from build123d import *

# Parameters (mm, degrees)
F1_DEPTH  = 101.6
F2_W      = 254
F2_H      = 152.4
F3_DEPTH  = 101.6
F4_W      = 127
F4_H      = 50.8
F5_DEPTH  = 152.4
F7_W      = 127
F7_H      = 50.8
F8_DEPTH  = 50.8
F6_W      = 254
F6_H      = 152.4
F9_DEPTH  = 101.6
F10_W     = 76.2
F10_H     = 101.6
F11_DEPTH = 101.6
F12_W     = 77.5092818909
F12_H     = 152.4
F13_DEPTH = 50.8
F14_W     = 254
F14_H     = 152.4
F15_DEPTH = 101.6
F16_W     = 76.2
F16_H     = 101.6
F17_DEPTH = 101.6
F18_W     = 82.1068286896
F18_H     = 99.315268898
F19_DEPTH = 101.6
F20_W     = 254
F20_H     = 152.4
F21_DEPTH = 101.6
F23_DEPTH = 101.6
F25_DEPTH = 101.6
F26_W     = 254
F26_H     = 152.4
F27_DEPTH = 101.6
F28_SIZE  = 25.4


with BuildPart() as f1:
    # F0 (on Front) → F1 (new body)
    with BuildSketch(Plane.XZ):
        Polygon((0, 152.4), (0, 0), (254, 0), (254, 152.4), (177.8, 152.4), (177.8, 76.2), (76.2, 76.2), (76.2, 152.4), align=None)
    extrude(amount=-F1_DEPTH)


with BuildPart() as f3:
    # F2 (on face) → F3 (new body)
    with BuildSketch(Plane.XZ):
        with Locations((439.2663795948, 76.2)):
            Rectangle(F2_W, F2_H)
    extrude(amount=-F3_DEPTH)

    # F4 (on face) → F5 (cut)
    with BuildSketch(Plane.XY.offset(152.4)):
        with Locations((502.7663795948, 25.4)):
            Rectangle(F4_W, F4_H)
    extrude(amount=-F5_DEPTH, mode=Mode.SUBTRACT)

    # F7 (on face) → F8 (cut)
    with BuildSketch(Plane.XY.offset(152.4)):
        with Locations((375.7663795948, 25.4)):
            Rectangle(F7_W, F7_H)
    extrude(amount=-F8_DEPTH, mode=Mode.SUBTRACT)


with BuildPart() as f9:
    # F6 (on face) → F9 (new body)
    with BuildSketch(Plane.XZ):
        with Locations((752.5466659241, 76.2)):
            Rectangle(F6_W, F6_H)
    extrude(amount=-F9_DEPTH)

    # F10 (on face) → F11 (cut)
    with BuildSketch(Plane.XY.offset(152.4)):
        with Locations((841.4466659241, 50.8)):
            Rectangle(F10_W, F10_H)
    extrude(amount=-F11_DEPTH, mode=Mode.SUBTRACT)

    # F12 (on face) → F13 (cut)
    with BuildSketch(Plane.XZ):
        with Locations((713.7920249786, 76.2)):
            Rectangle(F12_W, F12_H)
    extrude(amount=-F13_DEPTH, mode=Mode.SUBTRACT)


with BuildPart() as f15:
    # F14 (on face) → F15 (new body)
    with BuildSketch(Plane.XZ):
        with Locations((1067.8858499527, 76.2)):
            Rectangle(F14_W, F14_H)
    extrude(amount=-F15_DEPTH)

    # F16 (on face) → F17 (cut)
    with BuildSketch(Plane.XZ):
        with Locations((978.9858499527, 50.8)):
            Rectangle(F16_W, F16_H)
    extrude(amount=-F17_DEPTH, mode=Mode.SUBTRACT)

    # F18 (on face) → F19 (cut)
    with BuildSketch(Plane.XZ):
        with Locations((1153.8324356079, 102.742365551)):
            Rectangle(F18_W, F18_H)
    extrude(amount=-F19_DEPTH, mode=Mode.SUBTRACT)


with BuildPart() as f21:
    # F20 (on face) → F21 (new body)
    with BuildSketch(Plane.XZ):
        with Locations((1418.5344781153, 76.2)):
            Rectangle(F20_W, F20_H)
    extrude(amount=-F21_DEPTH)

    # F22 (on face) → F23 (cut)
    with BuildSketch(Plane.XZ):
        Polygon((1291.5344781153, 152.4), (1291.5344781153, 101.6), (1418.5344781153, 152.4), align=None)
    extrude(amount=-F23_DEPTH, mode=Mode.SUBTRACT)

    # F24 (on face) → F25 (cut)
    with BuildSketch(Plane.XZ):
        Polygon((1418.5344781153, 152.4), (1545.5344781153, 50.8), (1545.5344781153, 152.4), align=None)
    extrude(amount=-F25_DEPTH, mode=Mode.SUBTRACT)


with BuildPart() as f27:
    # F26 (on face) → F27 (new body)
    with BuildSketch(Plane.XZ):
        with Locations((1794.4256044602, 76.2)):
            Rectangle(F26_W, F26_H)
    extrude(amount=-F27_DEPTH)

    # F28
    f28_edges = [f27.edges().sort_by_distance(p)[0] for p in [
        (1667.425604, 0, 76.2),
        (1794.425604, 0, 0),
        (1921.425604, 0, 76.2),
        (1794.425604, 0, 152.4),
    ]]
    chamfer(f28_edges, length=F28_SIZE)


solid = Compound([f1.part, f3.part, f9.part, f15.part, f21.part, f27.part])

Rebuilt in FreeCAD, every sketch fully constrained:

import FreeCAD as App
import Part
import Sketcher
Q = App.Units.Quantity


def edges_at(feature, points):
    """Names of the edges that pass closest to the given points."""
    edges = feature.Shape.Edges
    near = lambda p: min(range(len(edges)), key=lambda i: edges[i].distToShape(Part.Vertex(*p))[0])
    return sorted({f"Edge{near(p) + 1}" for p in points})


def add_polygon(sketch, points):
    """Adds a closed chain of lines whose ends are joined by coincident constraints."""
    first, n = sketch.GeometryCount, len(points)
    for a, b in zip(points, points[1:] + points[:1]):
        sketch.addGeometry(Part.LineSegment(App.Vector(*a, 0), App.Vector(*b, 0)), False)
    for i in range(n):
        sketch.addConstraint(Sketcher.Constraint("Coincident", first + i, 2, first + (i + 1) % n, 1))

doc = App.newDocument("Part")
body = doc.addObject("PartDesign::Body", "Body")

# Sketch on XZ plane
sketch1 = body.newObject("Sketcher::SketchObject", "Sketch")
sketch1.AttachmentSupport = (doc.getObject("XZ_Plane"), [""])
sketch1.MapMode = "FlatFace"
add_polygon(sketch1, [(0, 152.4), (0, 0), (254, 0), (254, 152.4), (177.8, 152.4), (177.8, 76.2), (76.2, 76.2), (76.2, 152.4)])  # lines 0-7
sketch1.addConstraint(Sketcher.Constraint("Vertical", 0))
sketch1.addConstraint(Sketcher.Constraint("Horizontal", 1))
sketch1.addConstraint(Sketcher.Constraint("Vertical", 2))
sketch1.addConstraint(Sketcher.Constraint("Horizontal", 3))
sketch1.addConstraint(Sketcher.Constraint("Vertical", 4))
sketch1.addConstraint(Sketcher.Constraint("Horizontal", 5))
sketch1.addConstraint(Sketcher.Constraint("Vertical", 6))
sketch1.addConstraint(Sketcher.Constraint("Horizontal", 7))
sketch1.addConstraint(Sketcher.Constraint("Coincident", 0, 2, -1, 1))
sketch1.addConstraint(Sketcher.Constraint("Horizontal", 3, 2, 6, 2))
sketch1.addConstraint(Sketcher.Constraint("Equal", 3, 7))
sketch1.addConstraint(Sketcher.Constraint("Equal", 7, 4))
sketch1.addConstraint(Sketcher.Constraint("DistanceX", 1, 1, 1, 2, Q("10 in")))
sketch1.addConstraint(Sketcher.Constraint("DistanceX", 3, 2, 3, 1, Q("3 in")))
sketch1.addConstraint(Sketcher.Constraint("DistanceY", 0, 2, 0, 1, Q("6 in")))
pad1 = body.newObject("PartDesign::Pad", "Pad")
pad1.Profile = sketch1
pad1.Length = Q("4 in")
pad1.Reversed = True
body2 = doc.addObject("PartDesign::Body", "Body001")

# Sketch on XZ plane
sketch2 = body2.newObject("Sketcher::SketchObject", "Sketch001")
sketch2.AttachmentSupport = (doc.getObject("XZ_Plane001"), [""])
sketch2.MapMode = "FlatFace"
add_polygon(sketch2, [(312.26638, 152.4), (312.26638, 0), (566.26638, 0), (566.26638, 152.4)])  # lines 0-3
sketch2.addConstraint(Sketcher.Constraint("Vertical", 0))
sketch2.addConstraint(Sketcher.Constraint("Horizontal", 1))
sketch2.addConstraint(Sketcher.Constraint("Vertical", 2))
sketch2.addConstraint(Sketcher.Constraint("Horizontal", 3))
sketch2.addConstraint(Sketcher.Constraint("PointOnObject", 0, 2, -1))
sketch2.addConstraint(Sketcher.Constraint("DistanceX", 1, 1, 1, 2, Q("10 in")))
sketch2.addConstraint(Sketcher.Constraint("DistanceY", 0, 2, 0, 1, Q("6 in")))
sketch2.addConstraint(Sketcher.Constraint("DistanceX", -1, 1, 0, 2, Q("312.26638 mm")))
pad2 = body2.newObject("PartDesign::Pad", "Pad001")
pad2.Profile = sketch2
pad2.Length = Q("4 in")
pad2.Reversed = True

# Sketch on XY plane
sketch3 = body2.newObject("Sketcher::SketchObject", "Sketch002")
sketch3.AttachmentSupport = (doc.getObject("XY_Plane001"), [""])
sketch3.MapMode = "FlatFace"
sketch3.AttachmentOffset = App.Placement(App.Vector(0, 0, 6 * 25.4), App.Rotation())
add_polygon(sketch3, [(439.26638, 50.8), (439.26638, 0), (566.26638, 0), (566.26638, 50.8)])  # lines 0-3
sketch3.addConstraint(Sketcher.Constraint("Vertical", 0))
sketch3.addConstraint(Sketcher.Constraint("Horizontal", 1))
sketch3.addConstraint(Sketcher.Constraint("Vertical", 2))
sketch3.addConstraint(Sketcher.Constraint("Horizontal", 3))
sketch3.addConstraint(Sketcher.Constraint("PointOnObject", 0, 2, -1))
sketch3.addConstraint(Sketcher.Constraint("DistanceX", 1, 1, 1, 2, Q("5 in")))
sketch3.addConstraint(Sketcher.Constraint("DistanceY", 0, 2, 0, 1, Q("2 in")))
sketch3.addConstraint(Sketcher.Constraint("DistanceX", -1, 1, 0, 2, Q("439.26638 mm")))
pocket1 = body2.newObject("PartDesign::Pocket", "Pocket")
pocket1.Profile = sketch3
pocket1.Length = Q("6 in")

# Sketch on XY plane
sketch4 = body2.newObject("Sketcher::SketchObject", "Sketch003")
sketch4.AttachmentSupport = (doc.getObject("XY_Plane001"), [""])
sketch4.MapMode = "FlatFace"
sketch4.AttachmentOffset = App.Placement(App.Vector(0, 0, 6 * 25.4), App.Rotation())
add_polygon(sketch4, [(312.26638, 50.8), (312.26638, 0), (439.26638, 0), (439.26638, 50.8)])  # lines 0-3
sketch4.addConstraint(Sketcher.Constraint("Vertical", 0))
sketch4.addConstraint(Sketcher.Constraint("Horizontal", 1))
sketch4.addConstraint(Sketcher.Constraint("Vertical", 2))
sketch4.addConstraint(Sketcher.Constraint("Horizontal", 3))
sketch4.addConstraint(Sketcher.Constraint("PointOnObject", 0, 2, -1))
sketch4.addConstraint(Sketcher.Constraint("DistanceX", 1, 1, 1, 2, Q("5 in")))
sketch4.addConstraint(Sketcher.Constraint("DistanceY", 0, 2, 0, 1, Q("2 in")))
sketch4.addConstraint(Sketcher.Constraint("DistanceX", -1, 1, 0, 2, Q("312.26638 mm")))
pocket2 = body2.newObject("PartDesign::Pocket", "Pocket001")
pocket2.Profile = sketch4
pocket2.Length = Q("2 in")
body3 = doc.addObject("PartDesign::Body", "Body002")

# Sketch on XZ plane
sketch5 = body3.newObject("Sketcher::SketchObject", "Sketch004")
sketch5.AttachmentSupport = (doc.getObject("XZ_Plane002"), [""])
sketch5.MapMode = "FlatFace"
add_polygon(sketch5, [(625.546666, 152.4), (625.546666, 0), (879.546666, 0), (879.546666, 152.4)])  # lines 0-3
sketch5.addConstraint(Sketcher.Constraint("Vertical", 0))
sketch5.addConstraint(Sketcher.Constraint("Horizontal", 1))
sketch5.addConstraint(Sketcher.Constraint("Vertical", 2))
sketch5.addConstraint(Sketcher.Constraint("Horizontal", 3))
sketch5.addConstraint(Sketcher.Constraint("PointOnObject", 0, 2, -1))
sketch5.addConstraint(Sketcher.Constraint("DistanceX", 1, 1, 1, 2, Q("10 in")))
sketch5.addConstraint(Sketcher.Constraint("DistanceY", 0, 2, 0, 1, Q("6 in")))
sketch5.addConstraint(Sketcher.Constraint("DistanceX", -1, 1, 0, 2, Q("625.546666 mm")))
pad3 = body3.newObject("PartDesign::Pad", "Pad002")
pad3.Profile = sketch5
pad3.Length = Q("4 in")
pad3.Reversed = True

# Sketch on XY plane
sketch6 = body3.newObject("Sketcher::SketchObject", "Sketch005")
sketch6.AttachmentSupport = (doc.getObject("XY_Plane002"), [""])
sketch6.MapMode = "FlatFace"
sketch6.AttachmentOffset = App.Placement(App.Vector(0, 0, 6 * 25.4), App.Rotation())
add_polygon(sketch6, [(803.346666, 101.6), (803.346666, 0), (879.546666, 0), (879.546666, 101.6)])  # lines 0-3
sketch6.addConstraint(Sketcher.Constraint("Vertical", 0))
sketch6.addConstraint(Sketcher.Constraint("Horizontal", 1))
sketch6.addConstraint(Sketcher.Constraint("Vertical", 2))
sketch6.addConstraint(Sketcher.Constraint("Horizontal", 3))
sketch6.addConstraint(Sketcher.Constraint("PointOnObject", 0, 2, -1))
sketch6.addConstraint(Sketcher.Constraint("DistanceX", 1, 1, 1, 2, Q("3 in")))
sketch6.addConstraint(Sketcher.Constraint("DistanceY", 0, 2, 0, 1, Q("4 in")))
sketch6.addConstraint(Sketcher.Constraint("DistanceX", -1, 1, 0, 2, Q("803.346666 mm")))
pocket3 = body3.newObject("PartDesign::Pocket", "Pocket002")
pocket3.Profile = sketch6
pocket3.Length = Q("4 in")

# Sketch on XZ plane
sketch7 = body3.newObject("Sketcher::SketchObject", "Sketch006")
sketch7.AttachmentSupport = (doc.getObject("XZ_Plane002"), [""])
sketch7.MapMode = "FlatFace"
add_polygon(sketch7, [(675.037384, 152.4), (675.037384, 0), (752.546666, 0), (752.546666, 152.4)])  # lines 0-3
sketch7.addConstraint(Sketcher.Constraint("Vertical", 0))
sketch7.addConstraint(Sketcher.Constraint("Horizontal", 1))
sketch7.addConstraint(Sketcher.Constraint("Vertical", 2))
sketch7.addConstraint(Sketcher.Constraint("Horizontal", 3))
sketch7.addConstraint(Sketcher.Constraint("PointOnObject", 0, 2, -1))
sketch7.addConstraint(Sketcher.Constraint("DistanceY", 0, 2, 0, 1, Q("6 in")))
sketch7.addConstraint(Sketcher.Constraint("DistanceX", 1, 1, 1, 2, Q("77.509282 mm")))
sketch7.addConstraint(Sketcher.Constraint("DistanceX", -1, 1, 0, 2, Q("675.037384 mm")))
pocket4 = body3.newObject("PartDesign::Pocket", "Pocket003")
pocket4.Profile = sketch7
pocket4.Length = Q("2 in")
body4 = doc.addObject("PartDesign::Body", "Body003")

# Sketch on XZ plane
sketch8 = body4.newObject("Sketcher::SketchObject", "Sketch007")
sketch8.AttachmentSupport = (doc.getObject("XZ_Plane003"), [""])
sketch8.MapMode = "FlatFace"
add_polygon(sketch8, [(940.88585, 152.4), (940.88585, 0), (1194.88585, 0), (1194.88585, 152.4)])  # lines 0-3
sketch8.addConstraint(Sketcher.Constraint("Vertical", 0))
sketch8.addConstraint(Sketcher.Constraint("Horizontal", 1))
sketch8.addConstraint(Sketcher.Constraint("Vertical", 2))
sketch8.addConstraint(Sketcher.Constraint("Horizontal", 3))
sketch8.addConstraint(Sketcher.Constraint("PointOnObject", 0, 2, -1))
sketch8.addConstraint(Sketcher.Constraint("DistanceX", 1, 1, 1, 2, Q("10 in")))
sketch8.addConstraint(Sketcher.Constraint("DistanceY", 0, 2, 0, 1, Q("6 in")))
sketch8.addConstraint(Sketcher.Constraint("DistanceX", -1, 1, 0, 2, Q("940.88585 mm")))
pad4 = body4.newObject("PartDesign::Pad", "Pad003")
pad4.Profile = sketch8
pad4.Length = Q("4 in")
pad4.Reversed = True

# Sketch on XZ plane
sketch9 = body4.newObject("Sketcher::SketchObject", "Sketch008")
sketch9.AttachmentSupport = (doc.getObject("XZ_Plane003"), [""])
sketch9.MapMode = "FlatFace"
add_polygon(sketch9, [(940.88585, 101.6), (940.88585, 0), (1017.08585, 0), (1017.08585, 101.6)])  # lines 0-3
sketch9.addConstraint(Sketcher.Constraint("Vertical", 0))
sketch9.addConstraint(Sketcher.Constraint("Horizontal", 1))
sketch9.addConstraint(Sketcher.Constraint("Vertical", 2))
sketch9.addConstraint(Sketcher.Constraint("Horizontal", 3))
sketch9.addConstraint(Sketcher.Constraint("PointOnObject", 0, 2, -1))
sketch9.addConstraint(Sketcher.Constraint("DistanceX", 1, 1, 1, 2, Q("3 in")))
sketch9.addConstraint(Sketcher.Constraint("DistanceY", 0, 2, 0, 1, Q("4 in")))
sketch9.addConstraint(Sketcher.Constraint("DistanceX", -1, 1, 0, 2, Q("940.88585 mm")))
pocket5 = body4.newObject("PartDesign::Pocket", "Pocket004")
pocket5.Profile = sketch9
pocket5.Length = Q("4 in")

# Sketch on XZ plane
sketch10 = body4.newObject("Sketcher::SketchObject", "Sketch009")
sketch10.AttachmentSupport = (doc.getObject("XZ_Plane003"), [""])
sketch10.MapMode = "FlatFace"
add_polygon(sketch10, [(1112.779021, 152.4), (1112.779021, 53.084731), (1194.88585, 53.084731), (1194.88585, 152.4)])  # lines 0-3
sketch10.addConstraint(Sketcher.Constraint("Vertical", 0))
sketch10.addConstraint(Sketcher.Constraint("Horizontal", 1))
sketch10.addConstraint(Sketcher.Constraint("Vertical", 2))
sketch10.addConstraint(Sketcher.Constraint("Horizontal", 3))
sketch10.addConstraint(Sketcher.Constraint("DistanceY", -1, 1, 2, 2, Q("6 in")))
sketch10.addConstraint(Sketcher.Constraint("DistanceX", 1, 1, 1, 2, Q("82.106829 mm")))
sketch10.addConstraint(Sketcher.Constraint("DistanceY", 0, 2, 0, 1, Q("99.315269 mm")))
sketch10.addConstraint(Sketcher.Constraint("DistanceX", -1, 1, 0, 2, Q("1112.779021 mm")))
pocket6 = body4.newObject("PartDesign::Pocket", "Pocket005")
pocket6.Profile = sketch10
pocket6.Length = Q("4 in")
body5 = doc.addObject("PartDesign::Body", "Body004")

# Sketch on XZ plane
sketch11 = body5.newObject("Sketcher::SketchObject", "Sketch010")
sketch11.AttachmentSupport = (doc.getObject("XZ_Plane004"), [""])
sketch11.MapMode = "FlatFace"
add_polygon(sketch11, [(1291.534478, 152.4), (1291.534478, 0), (1545.534478, 0), (1545.534478, 152.4)])  # lines 0-3
sketch11.addConstraint(Sketcher.Constraint("Vertical", 0))
sketch11.addConstraint(Sketcher.Constraint("Horizontal", 1))
sketch11.addConstraint(Sketcher.Constraint("Vertical", 2))
sketch11.addConstraint(Sketcher.Constraint("Horizontal", 3))
sketch11.addConstraint(Sketcher.Constraint("PointOnObject", 0, 2, -1))
sketch11.addConstraint(Sketcher.Constraint("DistanceX", 1, 1, 1, 2, Q("10 in")))
sketch11.addConstraint(Sketcher.Constraint("DistanceY", 0, 2, 0, 1, Q("6 in")))
sketch11.addConstraint(Sketcher.Constraint("DistanceX", -1, 1, 0, 2, Q("1291.534478 mm")))
pad5 = body5.newObject("PartDesign::Pad", "Pad004")
pad5.Profile = sketch11
pad5.Length = Q("4 in")
pad5.Reversed = True

# Sketch on XZ plane
sketch12 = body5.newObject("Sketcher::SketchObject", "Sketch011")
sketch12.AttachmentSupport = (doc.getObject("XZ_Plane004"), [""])
sketch12.MapMode = "FlatFace"
add_polygon(sketch12, [(1291.534478, 152.4), (1291.534478, 101.6), (1418.534478, 152.4)])  # lines 0-2
sketch12.addConstraint(Sketcher.Constraint("Vertical", 0))
sketch12.addConstraint(Sketcher.Constraint("Horizontal", 2))
sketch12.addConstraint(Sketcher.Constraint("DistanceX", 2, 2, 2, 1, Q("5 in")))
sketch12.addConstraint(Sketcher.Constraint("DistanceY", 0, 2, 0, 1, Q("2 in")))
sketch12.addConstraint(Sketcher.Constraint("DistanceY", -1, 1, 0, 2, Q("4 in")))
sketch12.addConstraint(Sketcher.Constraint("DistanceX", -1, 1, 0, 2, Q("1291.534478 mm")))
pocket7 = body5.newObject("PartDesign::Pocket", "Pocket006")
pocket7.Profile = sketch12
pocket7.Length = Q("4 in")

# Sketch on XZ plane
sketch13 = body5.newObject("Sketcher::SketchObject", "Sketch012")
sketch13.AttachmentSupport = (doc.getObject("XZ_Plane004"), [""])
sketch13.MapMode = "FlatFace"
add_polygon(sketch13, [(1418.534478, 152.4), (1545.534478, 50.8), (1545.534478, 152.4)])  # lines 0-2
sketch13.addConstraint(Sketcher.Constraint("Vertical", 1))
sketch13.addConstraint(Sketcher.Constraint("Horizontal", 2))
sketch13.addConstraint(Sketcher.Constraint("DistanceX", 2, 2, 2, 1, Q("5 in")))
sketch13.addConstraint(Sketcher.Constraint("DistanceY", 1, 1, 1, 2, Q("4 in")))
sketch13.addConstraint(Sketcher.Constraint("DistanceY", -1, 1, 0, 2, Q("2 in")))
sketch13.addConstraint(Sketcher.Constraint("DistanceX", -1, 1, 0, 2, Q("1545.534478 mm")))
pocket8 = body5.newObject("PartDesign::Pocket", "Pocket007")
pocket8.Profile = sketch13
pocket8.Length = Q("4 in")
body6 = doc.addObject("PartDesign::Body", "Body005")

# Sketch on XZ plane
sketch14 = body6.newObject("Sketcher::SketchObject", "Sketch013")
sketch14.AttachmentSupport = (doc.getObject("XZ_Plane005"), [""])
sketch14.MapMode = "FlatFace"
add_polygon(sketch14, [(1667.425604, 152.4), (1667.425604, 0), (1921.425604, 0), (1921.425604, 152.4)])  # lines 0-3
sketch14.addConstraint(Sketcher.Constraint("Vertical", 0))
sketch14.addConstraint(Sketcher.Constraint("Horizontal", 1))
sketch14.addConstraint(Sketcher.Constraint("Vertical", 2))
sketch14.addConstraint(Sketcher.Constraint("Horizontal", 3))
sketch14.addConstraint(Sketcher.Constraint("PointOnObject", 0, 2, -1))
sketch14.addConstraint(Sketcher.Constraint("DistanceX", 1, 1, 1, 2, Q("10 in")))
sketch14.addConstraint(Sketcher.Constraint("DistanceY", 0, 2, 0, 1, Q("6 in")))
sketch14.addConstraint(Sketcher.Constraint("DistanceX", -1, 1, 0, 2, Q("1667.425604 mm")))
pad6 = body6.newObject("PartDesign::Pad", "Pad005")
pad6.Profile = sketch14
pad6.Length = Q("4 in")
pad6.Reversed = True
doc.recompute()

chamfer = body6.newObject("PartDesign::Chamfer", "Chamfer")
chamfer.Base = (pad6, edges_at(pad6, [
    (1667.426, 0, 76.2),
    (1794.426, 0, 0),
    (1921.426, 0, 76.2),
    (1794.426, 0, 152.4),
]))
chamfer.Size = Q("1 in")

doc.recompute()
